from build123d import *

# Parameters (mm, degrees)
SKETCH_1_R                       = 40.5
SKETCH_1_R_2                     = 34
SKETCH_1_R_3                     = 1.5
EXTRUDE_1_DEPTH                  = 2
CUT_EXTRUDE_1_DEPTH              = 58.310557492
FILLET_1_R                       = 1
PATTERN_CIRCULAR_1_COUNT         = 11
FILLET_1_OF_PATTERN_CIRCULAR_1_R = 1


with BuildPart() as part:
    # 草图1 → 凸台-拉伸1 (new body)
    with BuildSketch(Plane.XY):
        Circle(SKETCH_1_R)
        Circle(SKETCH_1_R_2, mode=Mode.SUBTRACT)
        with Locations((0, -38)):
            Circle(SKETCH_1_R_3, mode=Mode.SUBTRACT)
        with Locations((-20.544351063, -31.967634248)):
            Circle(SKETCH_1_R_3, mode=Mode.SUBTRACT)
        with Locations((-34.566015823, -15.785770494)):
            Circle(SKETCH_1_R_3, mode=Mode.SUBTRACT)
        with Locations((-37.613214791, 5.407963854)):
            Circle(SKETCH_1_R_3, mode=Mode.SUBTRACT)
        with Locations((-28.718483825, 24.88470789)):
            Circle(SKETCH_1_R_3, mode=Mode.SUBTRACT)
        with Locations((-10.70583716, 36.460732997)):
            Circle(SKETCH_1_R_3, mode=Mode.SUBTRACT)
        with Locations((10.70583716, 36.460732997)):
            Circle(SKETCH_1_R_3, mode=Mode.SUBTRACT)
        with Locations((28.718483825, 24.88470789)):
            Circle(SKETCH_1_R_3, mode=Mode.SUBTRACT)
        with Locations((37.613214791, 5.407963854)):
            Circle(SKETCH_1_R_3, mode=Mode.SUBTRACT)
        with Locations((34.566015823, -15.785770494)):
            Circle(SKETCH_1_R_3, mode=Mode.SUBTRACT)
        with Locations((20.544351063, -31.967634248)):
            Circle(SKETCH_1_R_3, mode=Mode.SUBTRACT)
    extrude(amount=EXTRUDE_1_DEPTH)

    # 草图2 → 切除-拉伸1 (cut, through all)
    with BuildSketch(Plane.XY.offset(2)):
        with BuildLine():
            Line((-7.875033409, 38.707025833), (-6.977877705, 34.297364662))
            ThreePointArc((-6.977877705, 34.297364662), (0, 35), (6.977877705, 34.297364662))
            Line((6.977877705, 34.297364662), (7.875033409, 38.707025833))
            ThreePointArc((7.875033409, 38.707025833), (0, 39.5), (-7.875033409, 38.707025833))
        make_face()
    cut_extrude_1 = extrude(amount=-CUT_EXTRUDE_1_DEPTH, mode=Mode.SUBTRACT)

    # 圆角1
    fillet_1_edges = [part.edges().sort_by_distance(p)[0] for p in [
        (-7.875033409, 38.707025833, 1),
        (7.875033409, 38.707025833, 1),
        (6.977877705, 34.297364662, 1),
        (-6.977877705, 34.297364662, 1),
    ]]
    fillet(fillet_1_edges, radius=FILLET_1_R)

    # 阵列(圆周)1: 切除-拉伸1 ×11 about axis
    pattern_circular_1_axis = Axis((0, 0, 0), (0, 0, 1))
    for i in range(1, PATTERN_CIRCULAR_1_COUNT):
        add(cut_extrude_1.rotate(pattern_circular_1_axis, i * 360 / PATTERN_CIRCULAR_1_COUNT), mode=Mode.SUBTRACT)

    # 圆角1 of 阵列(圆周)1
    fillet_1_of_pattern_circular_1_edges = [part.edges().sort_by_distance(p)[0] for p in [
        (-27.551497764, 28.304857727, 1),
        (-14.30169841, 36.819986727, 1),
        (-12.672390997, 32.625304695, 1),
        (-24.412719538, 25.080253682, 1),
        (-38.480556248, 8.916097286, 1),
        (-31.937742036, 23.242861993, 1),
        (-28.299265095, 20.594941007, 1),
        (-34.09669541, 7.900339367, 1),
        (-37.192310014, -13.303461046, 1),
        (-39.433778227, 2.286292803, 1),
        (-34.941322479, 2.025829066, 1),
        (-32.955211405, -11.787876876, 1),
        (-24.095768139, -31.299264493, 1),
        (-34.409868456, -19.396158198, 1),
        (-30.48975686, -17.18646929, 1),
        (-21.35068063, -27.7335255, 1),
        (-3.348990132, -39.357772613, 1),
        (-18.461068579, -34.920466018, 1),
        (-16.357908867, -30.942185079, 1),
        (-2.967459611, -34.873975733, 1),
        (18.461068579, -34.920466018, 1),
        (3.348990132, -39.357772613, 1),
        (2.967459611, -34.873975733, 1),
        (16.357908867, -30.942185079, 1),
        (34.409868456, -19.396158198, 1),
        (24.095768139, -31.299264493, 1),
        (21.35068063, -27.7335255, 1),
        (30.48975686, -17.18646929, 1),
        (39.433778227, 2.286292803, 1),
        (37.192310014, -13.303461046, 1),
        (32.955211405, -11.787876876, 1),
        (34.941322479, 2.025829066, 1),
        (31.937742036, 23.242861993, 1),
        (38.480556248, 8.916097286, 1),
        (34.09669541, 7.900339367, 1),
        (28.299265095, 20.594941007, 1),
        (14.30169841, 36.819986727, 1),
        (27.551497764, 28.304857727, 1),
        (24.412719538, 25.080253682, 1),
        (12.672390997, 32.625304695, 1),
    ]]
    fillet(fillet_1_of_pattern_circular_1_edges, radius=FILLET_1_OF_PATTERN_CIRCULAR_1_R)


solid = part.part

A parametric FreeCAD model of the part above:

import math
import FreeCAD as App
import Part
import Sketcher
Q = App.Units.Quantity


def edges_at(feature, points):
    """Names of the edges that pass closest to the given points."""
    edges = feature.Shape.Edges
    near = lambda p: min(range(len(edges)), key=lambda i: edges[i].distToShape(Part.Vertex(*p))[0])
    return sorted({f"Edge{near(p) + 1}" for p in points})

doc = App.newDocument("Part")
params = doc.addObject("Spreadsheet::Sheet", "Params")
for row, (alias, value) in enumerate([
    ("sketch1_diameter", "81 mm"),
    ("sketch1_diameter2", "3 mm"),
    ("sketch1_diameter3", "68 mm"),
    ("pad1_length", "2 mm"),
    ("sketch2_radius", "35 mm"),
    ("sketch2_radius2", "39.5 mm"),
    ("fillet_radius", "1 mm"),
    ("fillet2_radius", "1 mm"),
], start=1):
    params.set(f"A{row}", alias)
    params.set(f"B{row}", "=" + value)
    params.setAlias(f"B{row}", alias)

body = doc.addObject("PartDesign::Body", "Body")

# Sketch on XY plane
sketch1 = doc.addObject("Sketcher::SketchObject", "Sketch")
body.addObject(sketch1)
sketch1.AttachmentSupport = (doc.XY_Plane, [""])
sketch1.MapMode = "FlatFace"
sketch1.addGeometry(Part.Circle(App.Vector(0, 0, 0), App.Vector(0, 0, 1), 40.5), False)
sketch1.addGeometry(Part.Circle(App.Vector(-20.544351, -31.967634, 0), App.Vector(0, 0, 1), 1.5), False)
sketch1.addGeometry(Part.Circle(App.Vector(-34.566016, -15.78577, 0), App.Vector(0, 0, 1), 1.5), False)
sketch1.addGeometry(Part.Circle(App.Vector(0, -38, 0), App.Vector(0, 0, 1), 1.5), False)
sketch1.addGeometry(Part.Circle(App.Vector(20.544351, -31.967634, 0), App.Vector(0, 0, 1), 1.5), False)
sketch1.addGeometry(Part.Circle(App.Vector(34.566016, -15.78577, 0), App.Vector(0, 0, 1), 1.5), False)
sketch1.addGeometry(Part.Circle(App.Vector(-37.613215, 5.407964, 0), App.Vector(0, 0, 1), 1.5), False)
sketch1.addGeometry(Part.Circle(App.Vector(-28.718484, 24.884708, 0), App.Vector(0, 0, 1), 1.5), False)
sketch1.addGeometry(Part.Circle(App.Vector(-10.705837, 36.460733, 0), App.Vector(0, 0, 1), 1.5), False)
sketch1.addGeometry(Part.Circle(App.Vector(0, 0, 0), App.Vector(0, 0, 1), 34), False)
sketch1.addGeometry(Part.Circle(App.Vector(37.613215, 5.407964, 0), App.Vector(0, 0, 1), 1.5), False)
sketch1.addGeometry(Part.Circle(App.Vector(10.705837, 36.460733, 0), App.Vector(0, 0, 1), 1.5), False)
sketch1.addGeometry(Part.Circle(App.Vector(28.718484, 24.884708, 0), App.Vector(0, 0, 1), 1.5), False)
sketch1.addConstraint(Sketcher.Constraint("Coincident", 0, 3, -1, 1))
sketch1.addConstraint(Sketcher.Constraint("Coincident", 9, 3, -1, 1))
sketch1.addConstraint(Sketcher.Constraint("Equal", 1, 2))
sketch1.addConstraint(Sketcher.Constraint("Equal", 2, 3))
sketch1.addConstraint(Sketcher.Constraint("Equal", 3, 4))
sketch1.addConstraint(Sketcher.Constraint("Equal", 4, 5))
sketch1.addConstraint(Sketcher.Constraint("Equal", 5, 6))
sketch1.addConstraint(Sketcher.Constraint("Equal", 6, 7))
sketch1.addConstraint(Sketcher.Constraint("Equal", 7, 8))
sketch1.addConstraint(Sketcher.Constraint("Equal", 8, 10))
sketch1.addConstraint(Sketcher.Constraint("Equal", 10, 11))
sketch1.addConstraint(Sketcher.Constraint("Equal", 11, 12))
sketch1.addConstraint(Sketcher.Constraint("Symmetric", 1, 3, 4, 3, -2))
sketch1.addConstraint(Sketcher.Constraint("Symmetric", 2, 3, 5, 3, -2))
sketch1.addConstraint(Sketcher.Constraint("Symmetric", 6, 3, 10, 3, -2))
sketch1.addConstraint(Sketcher.Constraint("Symmetric", 8, 3, 11, 3, -2))
sketch1.addConstraint(Sketcher.Constraint("Symmetric", 7, 3, 12, 3, -2))
sketch1.addConstraint(Sketcher.Constraint("PointOnObject", 3, 3, -2))
sketch1.addConstraint(Sketcher.Constraint("Diameter", 0, 81.0))
sketch1.addConstraint(Sketcher.Constraint("Diameter", 1, 3.0))
sketch1.addConstraint(Sketcher.Constraint("Diameter", 9, 68.0))
sketch1.addConstraint(Sketcher.Constraint("DistanceY", 3, 3, -1, 1, 38.0))
sketch1.addConstraint(Sketcher.Constraint("DistanceX", 6, 3, 2, 3, 3.047199))
sketch1.addConstraint(Sketcher.Constraint("DistanceY", 1, 3, 6, 3, 37.375598))
sketch1.addConstraint(Sketcher.Constraint("DistanceX", 1, 3, -1, 1, 20.544351))
sketch1.addConstraint(Sketcher.Constraint("DistanceY", 2, 3, -1, 1, 15.78577))
sketch1.addConstraint(Sketcher.Constraint("DistanceX", 2, 3, 5, 3, 69.132032))
sketch1.addConstraint(Sketcher.Constraint("DistanceX", 6, 3, 7, 3, 8.894731))
sketch1.addConstraint(Sketcher.Constraint("DistanceY", 2, 3, 7, 3, 40.670478))
sketch1.addConstraint(Sketcher.Constraint("DistanceY", 6, 3, 8, 3, 31.052769))
sketch1.addConstraint(Sketcher.Constraint("DistanceX", 2, 3, 8, 3, 23.860179))
sketch1.addConstraint(Sketcher.Constraint("DistanceY", 1, 3, -1, 1, 31.967634))
sketch1.setExpression("Constraints[18]", "Params.sketch1_diameter")
sketch1.setExpression("Constraints[19]", "Params.sketch1_diameter2")
sketch1.setExpression("Constraints[20]", "Params.sketch1_diameter3")
pad1 = doc.addObject("PartDesign::Pad", "Pad")
body.addObject(pad1)
pad1.Profile = sketch1
pad1.setExpression("Length", "Params.pad1_length")

# Sketch on XY plane
sketch2 = doc.addObject("Sketcher::SketchObject", "Sketch001")
body.addObject(sketch2)
sketch2.AttachmentSupport = (doc.XY_Plane, [""])
sketch2.MapMode = "FlatFace"
sketch2.AttachmentOffset = App.Placement(App.Vector(0, 0, 2), App.Rotation())
sketch2.addGeometry(Part.LineSegment(App.Vector(-7.875033, 38.707026, 0), App.Vector(-6.977878, 34.297365, 0)), False)
sketch2.addGeometry(Part.ArcOfCircle(Part.Circle(App.Vector(0, 0, 0), App.Vector(0, 0, 1), 35), math.radians(78.5), math.radians(101.5)), False)
sketch2.addGeometry(Part.LineSegment(App.Vector(6.977878, 34.297365, 0), App.Vector(7.875033, 38.707026, 0)), False)
sketch2.addGeometry(Part.ArcOfCircle(Part.Circle(App.Vector(0, 0, 0), App.Vector(0, 0, 1), 39.5), math.radians(78.5), math.radians(101.5)), False)
sketch2.addConstraint(Sketcher.Constraint("Coincident", 0, 2, 1, 2))
sketch2.addConstraint(Sketcher.Constraint("Coincident", 1, 1, 2, 1))
sketch2.addConstraint(Sketcher.Constraint("Coincident", 2, 2, 3, 1))
sketch2.addConstraint(Sketcher.Constraint("Coincident", 3, 2, 0, 1))
sketch2.addConstraint(Sketcher.Constraint("Coincident", 1, 3, -1, 1))
sketch2.addConstraint(Sketcher.Constraint("Coincident", 3, 3, -1, 1))
sketch2.addConstraint(Sketcher.Constraint("Horizontal", 0, 2, 1, 1))
sketch2.addConstraint(Sketcher.Constraint("Horizontal", 2, 2, 3, 2))
sketch2.addConstraint(Sketcher.Constraint("Radius", 1, 35.0))
sketch2.addConstraint(Sketcher.Constraint("Radius", 3, 39.5))
sketch2.addConstraint(Sketcher.Constraint("Angle", 0, Q("-78.5 deg")))
sketch2.addConstraint(Sketcher.Constraint("DistanceX", 0, 2, 2, 2, 14.852911))
sketch2.setExpression("Constraints[8]", "Params.sketch2_radius")
sketch2.setExpression("Constraints[9]", "Params.sketch2_radius2")
pocket1 = doc.addObject("PartDesign::Pocket", "Pocket")
body.addObject(pocket1)
pocket1.Profile = sketch2
pocket1.Type = "ThroughAll"
doc.recompute()

fillet = doc.addObject("PartDesign::Fillet", "Fillet")
body.addObject(fillet)
fillet.Base = (pocket1, edges_at(pocket1, [
    (-7.875, 38.707, 1),
    (7.875, 38.707, 1),
    (6.978, 34.297, 1),
    (-6.978, 34.297, 1),
]))
fillet.setExpression("Radius", "Params.fillet_radius")
doc.recompute()

polarpattern = doc.addObject("PartDesign::PolarPattern", "PolarPattern")
body.addObject(polarpattern)
polarpattern.Originals = [pocket1]
polarpattern.Axis = (doc.Z_Axis, [""])
polarpattern.Angle = 360
polarpattern.Occurrences = 11
body.Tip = polarpattern
doc.recompute()

fillet2 = doc.addObject("PartDesign::Fillet", "Fillet001")
body.addObject(fillet2)
fillet2.Base = (polarpattern, edges_at(polarpattern, [
    (-27.551, 28.305, 1),
    (-14.302, 36.82, 1),
    (-12.672, 32.625, 1),
    (-24.413, 25.08, 1),
    (-38.481, 8.916, 1),
    (-31.938, 23.243, 1),
    (-28.299, 20.595, 1),
    (-34.097, 7.9, 1),
    (-37.192, -13.303, 1),
    (-39.434, 2.286, 1),
    (-34.941, 2.026, 1),
    (-32.955, -11.788, 1),
    (-24.096, -31.299, 1),
    (-34.41, -19.396, 1),
    (-30.49, -17.186, 1),
    (-21.351, -27.734, 1),
    (-3.349, -39.358, 1),
    (-18.461, -34.92, 1),
    (-16.358, -30.942, 1),
    (-2.967, -34.874, 1),
    (18.461, -34.92, 1),
    (3.349, -39.358, 1),
    (2.967, -34.874, 1),
    (16.358, -30.942, 1),
    (34.41, -19.396, 1),
    (24.096, -31.299, 1),
    (21.351, -27.734, 1),
    (30.49, -17.186, 1),
    (39.434, 2.286, 1),
    (37.192, -13.303, 1),
    (32.955, -11.788, 1),
    (34.941, 2.026, 1),
    (31.938, 23.243, 1),
    (38.481, 8.916, 1),
    (34.097, 7.9, 1),
    (28.299, 20.595, 1),
    (14.302, 36.82, 1),
    (27.551, 28.305, 1),
    (24.413, 25.08, 1),
    (12.672, 32.625, 1),
]))
fillet2.setExpression("Radius", "Params.fillet2_radius")

doc.recompute()
